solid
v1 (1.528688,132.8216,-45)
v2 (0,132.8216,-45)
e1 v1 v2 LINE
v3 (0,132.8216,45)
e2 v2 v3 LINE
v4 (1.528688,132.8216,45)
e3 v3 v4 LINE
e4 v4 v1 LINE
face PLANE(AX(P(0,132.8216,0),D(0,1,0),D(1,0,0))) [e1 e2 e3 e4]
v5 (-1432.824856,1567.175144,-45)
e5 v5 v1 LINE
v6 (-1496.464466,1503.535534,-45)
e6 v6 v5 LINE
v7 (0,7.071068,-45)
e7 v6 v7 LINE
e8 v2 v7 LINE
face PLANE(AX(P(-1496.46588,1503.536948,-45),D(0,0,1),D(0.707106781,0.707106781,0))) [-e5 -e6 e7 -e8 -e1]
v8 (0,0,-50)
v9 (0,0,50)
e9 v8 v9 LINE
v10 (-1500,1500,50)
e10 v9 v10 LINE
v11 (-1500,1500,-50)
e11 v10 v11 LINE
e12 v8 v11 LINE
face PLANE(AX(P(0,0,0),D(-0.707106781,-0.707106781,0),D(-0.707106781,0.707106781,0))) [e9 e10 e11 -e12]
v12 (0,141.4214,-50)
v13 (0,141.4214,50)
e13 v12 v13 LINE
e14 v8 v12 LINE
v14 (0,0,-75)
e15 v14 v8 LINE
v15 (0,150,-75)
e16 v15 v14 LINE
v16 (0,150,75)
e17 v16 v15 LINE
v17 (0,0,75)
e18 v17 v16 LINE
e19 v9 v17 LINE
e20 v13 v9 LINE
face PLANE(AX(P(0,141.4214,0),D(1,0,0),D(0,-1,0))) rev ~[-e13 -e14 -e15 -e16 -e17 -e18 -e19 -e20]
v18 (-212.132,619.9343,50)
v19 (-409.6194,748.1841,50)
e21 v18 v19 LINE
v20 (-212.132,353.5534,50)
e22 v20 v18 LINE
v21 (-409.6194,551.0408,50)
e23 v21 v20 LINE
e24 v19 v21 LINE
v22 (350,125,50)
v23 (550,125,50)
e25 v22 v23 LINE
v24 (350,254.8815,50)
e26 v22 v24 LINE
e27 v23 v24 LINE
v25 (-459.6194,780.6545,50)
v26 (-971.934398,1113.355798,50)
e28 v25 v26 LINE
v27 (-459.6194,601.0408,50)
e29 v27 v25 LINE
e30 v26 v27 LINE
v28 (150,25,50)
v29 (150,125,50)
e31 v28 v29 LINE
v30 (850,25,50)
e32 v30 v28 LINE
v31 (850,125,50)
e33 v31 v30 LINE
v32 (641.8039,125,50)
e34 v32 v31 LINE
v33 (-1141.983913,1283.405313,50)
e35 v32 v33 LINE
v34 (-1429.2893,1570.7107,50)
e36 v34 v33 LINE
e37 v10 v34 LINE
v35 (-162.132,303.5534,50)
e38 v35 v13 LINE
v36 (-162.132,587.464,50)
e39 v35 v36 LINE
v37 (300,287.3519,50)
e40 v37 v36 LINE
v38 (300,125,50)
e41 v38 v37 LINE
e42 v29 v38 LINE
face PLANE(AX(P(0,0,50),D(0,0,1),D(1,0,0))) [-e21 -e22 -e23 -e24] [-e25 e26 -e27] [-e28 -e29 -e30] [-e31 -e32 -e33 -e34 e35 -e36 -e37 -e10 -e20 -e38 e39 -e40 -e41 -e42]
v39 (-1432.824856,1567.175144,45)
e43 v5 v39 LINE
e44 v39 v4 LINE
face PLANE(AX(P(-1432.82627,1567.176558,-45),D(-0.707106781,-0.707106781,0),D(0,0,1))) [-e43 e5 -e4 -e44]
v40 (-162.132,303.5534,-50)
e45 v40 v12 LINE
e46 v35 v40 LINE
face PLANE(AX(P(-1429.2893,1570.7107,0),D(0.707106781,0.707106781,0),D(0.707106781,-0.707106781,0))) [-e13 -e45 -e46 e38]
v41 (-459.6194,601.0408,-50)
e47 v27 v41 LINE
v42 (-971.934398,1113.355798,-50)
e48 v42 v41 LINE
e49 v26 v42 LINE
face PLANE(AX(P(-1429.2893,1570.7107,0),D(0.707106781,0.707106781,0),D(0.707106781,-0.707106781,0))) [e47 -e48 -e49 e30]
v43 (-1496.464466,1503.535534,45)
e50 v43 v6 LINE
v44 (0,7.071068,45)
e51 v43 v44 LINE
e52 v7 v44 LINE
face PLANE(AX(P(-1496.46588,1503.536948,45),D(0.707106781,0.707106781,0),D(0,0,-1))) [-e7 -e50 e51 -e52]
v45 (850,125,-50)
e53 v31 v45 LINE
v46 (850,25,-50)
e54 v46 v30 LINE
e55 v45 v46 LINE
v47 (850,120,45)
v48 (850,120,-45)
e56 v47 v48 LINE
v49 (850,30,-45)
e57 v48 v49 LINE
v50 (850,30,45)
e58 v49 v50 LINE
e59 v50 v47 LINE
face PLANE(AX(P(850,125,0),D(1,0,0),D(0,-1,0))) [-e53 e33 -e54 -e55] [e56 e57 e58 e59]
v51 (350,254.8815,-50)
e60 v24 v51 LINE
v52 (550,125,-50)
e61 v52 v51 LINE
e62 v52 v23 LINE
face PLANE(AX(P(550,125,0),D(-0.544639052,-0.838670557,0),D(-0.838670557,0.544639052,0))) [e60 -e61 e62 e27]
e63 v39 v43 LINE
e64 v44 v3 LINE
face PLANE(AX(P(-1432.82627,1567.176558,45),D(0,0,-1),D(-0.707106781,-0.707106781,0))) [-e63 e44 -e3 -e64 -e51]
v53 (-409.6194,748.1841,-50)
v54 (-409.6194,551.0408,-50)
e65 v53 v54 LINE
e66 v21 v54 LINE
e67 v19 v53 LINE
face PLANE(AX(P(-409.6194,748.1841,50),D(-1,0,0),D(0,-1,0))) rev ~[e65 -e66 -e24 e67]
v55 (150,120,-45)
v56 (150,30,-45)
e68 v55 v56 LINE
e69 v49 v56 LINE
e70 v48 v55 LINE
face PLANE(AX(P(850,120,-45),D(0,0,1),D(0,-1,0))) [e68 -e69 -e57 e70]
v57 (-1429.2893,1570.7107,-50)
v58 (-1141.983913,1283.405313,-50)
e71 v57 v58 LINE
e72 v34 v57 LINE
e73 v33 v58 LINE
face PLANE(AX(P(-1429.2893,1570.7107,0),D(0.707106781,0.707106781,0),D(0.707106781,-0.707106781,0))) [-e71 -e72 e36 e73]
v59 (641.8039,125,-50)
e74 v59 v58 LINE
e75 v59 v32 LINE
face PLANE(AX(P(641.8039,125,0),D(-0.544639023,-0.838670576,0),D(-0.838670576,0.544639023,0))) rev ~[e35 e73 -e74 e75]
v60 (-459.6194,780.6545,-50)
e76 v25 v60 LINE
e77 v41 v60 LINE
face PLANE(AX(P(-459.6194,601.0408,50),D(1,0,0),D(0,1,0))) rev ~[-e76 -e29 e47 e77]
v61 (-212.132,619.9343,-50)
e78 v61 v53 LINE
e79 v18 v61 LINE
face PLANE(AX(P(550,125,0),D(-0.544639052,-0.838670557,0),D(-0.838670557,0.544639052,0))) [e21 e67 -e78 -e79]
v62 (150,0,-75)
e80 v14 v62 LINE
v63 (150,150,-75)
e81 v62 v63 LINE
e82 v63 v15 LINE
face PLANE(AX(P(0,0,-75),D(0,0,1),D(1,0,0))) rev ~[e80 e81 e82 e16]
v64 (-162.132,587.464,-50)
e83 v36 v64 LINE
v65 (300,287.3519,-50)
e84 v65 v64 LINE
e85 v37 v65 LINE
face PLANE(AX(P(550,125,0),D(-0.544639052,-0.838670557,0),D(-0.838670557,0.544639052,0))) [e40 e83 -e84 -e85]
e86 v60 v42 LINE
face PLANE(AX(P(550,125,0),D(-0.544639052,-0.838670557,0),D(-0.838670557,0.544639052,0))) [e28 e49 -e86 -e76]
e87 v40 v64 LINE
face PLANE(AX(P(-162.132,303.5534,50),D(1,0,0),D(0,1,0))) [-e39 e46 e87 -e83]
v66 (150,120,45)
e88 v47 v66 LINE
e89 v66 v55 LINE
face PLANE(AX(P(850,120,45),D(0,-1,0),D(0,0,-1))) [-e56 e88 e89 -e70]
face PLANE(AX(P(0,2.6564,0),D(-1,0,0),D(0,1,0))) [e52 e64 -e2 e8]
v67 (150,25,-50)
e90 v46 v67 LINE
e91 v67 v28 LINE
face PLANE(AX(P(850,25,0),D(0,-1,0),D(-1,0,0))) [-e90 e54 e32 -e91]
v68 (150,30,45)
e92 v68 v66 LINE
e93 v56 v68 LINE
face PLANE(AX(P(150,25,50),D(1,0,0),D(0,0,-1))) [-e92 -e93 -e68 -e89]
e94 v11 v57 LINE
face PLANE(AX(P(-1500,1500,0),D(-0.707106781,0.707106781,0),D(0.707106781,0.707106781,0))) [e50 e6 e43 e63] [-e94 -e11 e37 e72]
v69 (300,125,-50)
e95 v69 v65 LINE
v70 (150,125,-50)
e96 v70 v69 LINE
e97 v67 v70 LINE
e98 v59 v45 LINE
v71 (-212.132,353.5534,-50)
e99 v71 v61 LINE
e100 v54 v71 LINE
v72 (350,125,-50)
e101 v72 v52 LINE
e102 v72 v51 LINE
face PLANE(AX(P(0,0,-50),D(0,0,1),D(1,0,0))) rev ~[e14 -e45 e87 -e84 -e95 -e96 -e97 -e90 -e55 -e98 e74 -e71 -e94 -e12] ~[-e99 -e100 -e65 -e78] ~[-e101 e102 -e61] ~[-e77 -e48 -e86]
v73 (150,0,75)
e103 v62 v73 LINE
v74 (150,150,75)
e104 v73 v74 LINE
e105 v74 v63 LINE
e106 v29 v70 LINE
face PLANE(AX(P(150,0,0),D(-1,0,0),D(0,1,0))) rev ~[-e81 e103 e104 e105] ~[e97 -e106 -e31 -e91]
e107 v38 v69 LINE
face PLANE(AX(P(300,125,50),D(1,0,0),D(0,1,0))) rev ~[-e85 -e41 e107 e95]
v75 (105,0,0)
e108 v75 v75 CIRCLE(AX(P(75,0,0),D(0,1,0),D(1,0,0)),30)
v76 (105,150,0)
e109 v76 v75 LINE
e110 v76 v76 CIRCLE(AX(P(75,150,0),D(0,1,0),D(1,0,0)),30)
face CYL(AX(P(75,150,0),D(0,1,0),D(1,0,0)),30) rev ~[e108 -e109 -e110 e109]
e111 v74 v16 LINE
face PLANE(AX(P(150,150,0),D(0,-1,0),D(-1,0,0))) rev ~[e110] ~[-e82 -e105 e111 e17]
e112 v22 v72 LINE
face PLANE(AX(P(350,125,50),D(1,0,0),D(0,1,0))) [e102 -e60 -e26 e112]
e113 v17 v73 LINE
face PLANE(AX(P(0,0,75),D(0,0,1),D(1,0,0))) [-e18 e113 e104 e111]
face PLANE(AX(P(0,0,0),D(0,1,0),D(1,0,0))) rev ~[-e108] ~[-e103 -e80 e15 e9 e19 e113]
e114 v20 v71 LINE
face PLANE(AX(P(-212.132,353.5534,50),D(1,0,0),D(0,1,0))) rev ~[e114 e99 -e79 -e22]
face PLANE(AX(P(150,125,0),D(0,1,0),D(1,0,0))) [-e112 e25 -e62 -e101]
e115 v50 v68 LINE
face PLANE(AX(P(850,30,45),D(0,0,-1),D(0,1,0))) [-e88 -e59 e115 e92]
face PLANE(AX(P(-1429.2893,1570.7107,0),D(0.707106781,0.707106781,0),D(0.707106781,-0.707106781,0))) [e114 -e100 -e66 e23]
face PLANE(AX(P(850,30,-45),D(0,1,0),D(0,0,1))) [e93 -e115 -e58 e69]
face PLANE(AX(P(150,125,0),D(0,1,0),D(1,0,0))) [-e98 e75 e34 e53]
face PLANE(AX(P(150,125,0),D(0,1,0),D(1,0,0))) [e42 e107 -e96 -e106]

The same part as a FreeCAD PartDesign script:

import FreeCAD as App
import Part
import Sketcher

V = App.Vector
Q = App.Units.Quantity

doc = App.newDocument("Part")
body = doc.addObject("PartDesign::Body", "Body")

sketch1 = doc.addObject("Sketcher::SketchObject", "Sketch")
body.addObject(sketch1)
sketch1.AttachmentSupport = (doc.XY_Plane, [""])
sketch1.MapMode = "FlatFace"
sketch1.addGeometry([
    Part.LineSegment(V(0, 150, 0), V(0, 0, 0)),
    Part.LineSegment(V(0, 0, 0), V(150, 0, 0)),
    Part.LineSegment(V(150, 0, 0), V(150, 150, 0)),
    Part.LineSegment(V(150, 150, 0), V(0, 150, 0)),
], False)
sketch1.addConstraint([
    Sketcher.Constraint("Coincident", 0, 2, 1, 1),
    Sketcher.Constraint("Coincident", 1, 2, 2, 1),
    Sketcher.Constraint("Coincident", 2, 2, 3, 1),
    Sketcher.Constraint("Coincident", 3, 2, 0, 1),
    Sketcher.Constraint("Vertical", 0),
    Sketcher.Constraint("Horizontal", 1),
    Sketcher.Constraint("Vertical", 2),
    Sketcher.Constraint("Horizontal", 3),
    Sketcher.Constraint("Coincident", 0, 2, -1, 1),
    Sketcher.Constraint("Equal", 3, 0),
    Sketcher.Constraint("DistanceX", 1, 1, 1, 2, 150.0),
])
pad1 = doc.addObject("PartDesign::Pad", "Pad")
body.addObject(pad1)
pad1.Profile = sketch1
pad1.Length = 150
pad1.Midplane = True

sketch2 = doc.addObject("Sketcher::SketchObject", "Sketch001")
body.addObject(sketch2)
sketch2.AttachmentSupport = (doc.XY_Plane, [""])
sketch2.MapMode = "FlatFace"
sketch2.addGeometry([
    Part.LineSegment(V(-1500, 1500, 0), V(0, 0, 0)),
    Part.LineSegment(V(0, 0, 0), V(0, 141, 0)),
    Part.LineSegment(V(0, 141, 0), V(-1429, 1571, 0)),
    Part.LineSegment(V(-1429, 1571, 0), V(-1500, 1500, 0)),
    Part.LineSegment(V(150, 125, 0), V(150, 25, 0)),
    Part.LineSegment(V(150, 25, 0), V(850, 25, 0)),
    Part.LineSegment(V(850, 25, 0), V(850, 125, 0)),
    Part.LineSegment(V(850, 125, 0), V(150, 125, 0)),
], False)
sketch2.addConstraint([
    Sketcher.Constraint("Coincident", 0, 2, 1, 1),
    Sketcher.Constraint("Coincident", 1, 2, 2, 1),
    Sketcher.Constraint("Coincident", 2, 2, 3, 1),
    Sketcher.Constraint("Coincident", 3, 2, 0, 1),
    Sketcher.Constraint("Coincident", 4, 2, 5, 1),
    Sketcher.Constraint("Coincident", 5, 2, 6, 1),
    Sketcher.Constraint("Coincident", 6, 2, 7, 1),
    Sketcher.Constraint("Coincident", 7, 2, 4, 1),
    Sketcher.Constraint("Vertical", 1),
    Sketcher.Constraint("Vertical", 4),
    Sketcher.Constraint("Horizontal", 5),
    Sketcher.Constraint("Vertical", 6),
    Sketcher.Constraint("Horizontal", 7),
    Sketcher.Constraint("Coincident", 0, 2, -1, 1),
    Sketcher.Constraint("Parallel", 0, 2),
    Sketcher.Constraint("Perpendicular", 2, 3),
    Sketcher.Constraint("DistanceX", 5, 1, 5, 2, 700.0),
    Sketcher.Constraint("DistanceY", 4, 2, 4, 1, 100.0),
    Sketcher.Constraint("Angle", 2, Q("135 deg")),
    Sketcher.Constraint("Distance", 3, 100.0),
    Sketcher.Constraint("DistanceX", 3, 2, -1, 1, 1500.0),
    Sketcher.Constraint("DistanceY", -1, 1, 6, 2, 125.0),
    Sketcher.Constraint("DistanceX", -1, 1, 4, 2, 150.0),
])
pad2 = doc.addObject("PartDesign::Pad", "Pad001")
body.addObject(pad2)
pad2.Profile = sketch2
pad2.Length = 100
pad2.Midplane = True

sketch3 = doc.addObject("Sketcher::SketchObject", "Sketch002")
body.addObject(sketch3)
sketch3.Placement = App.Placement(V(-1500, 1500, -50), App.Rotation(V(-0.707106781, -0.707106781, 0), V(0, 0, 0.999999999), V(-0.707106781, 0.707106781, 0), "ZXY"))
sketch3.addGeometry([
    Part.LineSegment(V(-5, 95, 0), V(-95, 95, 0)),
    Part.LineSegment(V(-95, 95, 0), V(-95, 5, 0)),
    Part.LineSegment(V(-95, 5, 0), V(-5, 5, 0)),
    Part.LineSegment(V(-5, 5, 0), V(-5, 95, 0)),
], False)
sketch3.addConstraint([
    Sketcher.Constraint("Coincident", 0, 2, 1, 1),
    Sketcher.Constraint("Coincident", 1, 2, 2, 1),
    Sketcher.Constraint("Coincident", 2, 2, 3, 1),
    Sketcher.Constraint("Coincident", 3, 2, 0, 1),
    Sketcher.Constraint("Horizontal", 0),
    Sketcher.Constraint("Vertical", 1),
    Sketcher.Constraint("Horizontal", 2),
    Sketcher.Constraint("Vertical", 3),
    Sketcher.Constraint("Equal", 2, 1),
    Sketcher.Constraint("DistanceX", 0, 2, 0, 1, 90.0),
    Sketcher.Constraint("DistanceX", 0, 2, -1, 1, 95.0),
    Sketcher.Constraint("DistanceY", -1, 1, 0, 2, 95.0),
])
pocket1 = doc.addObject("PartDesign::Pocket", "Pocket")
body.addObject(pocket1)
pocket1.Profile = sketch3
pocket1.Length = 2122.5

sketch4 = doc.addObject("Sketcher::SketchObject", "Sketch003")
body.addObject(sketch4)
sketch4.AttachmentSupport = (doc.XY_Plane, [""])
sketch4.MapMode = "FlatFace"
sketch4.addGeometry([
    Part.LineSegment(V(69, 133, 0), V(0, 133, 0)),
    Part.LineSegment(V(0, 133, 0), V(0, 3, 0)),
    Part.LineSegment(V(0, 3, 0), V(69, 3, 0)),
    Part.LineSegment(V(69, 3, 0), V(69, 133, 0)),
], False)
sketch4.addConstraint([
    Sketcher.Constraint("Coincident", 0, 2, 1, 1),
    Sketcher.Constraint("Coincident", 1, 2, 2, 1),
    Sketcher.Constraint("Coincident", 2, 2, 3, 1),
    Sketcher.Constraint("Coincident", 3, 2, 0, 1),
    Sketcher.Constraint("Horizontal", 0),
    Sketcher.Constraint("Vertical", 1),
    Sketcher.Constraint("Horizontal", 2),
    Sketcher.Constraint("Vertical", 3),
    Sketcher.Constraint("PointOnObject", 0, 2, -2),
    Sketcher.Constraint("DistanceX", 0, 2, 0, 1, 69.0672),
    Sketcher.Constraint("DistanceY", 1, 2, 1, 1, 130.1652),
    Sketcher.Constraint("DistanceY", -1, 1, 0, 2, 132.8216),
])
pad3 = doc.addObject("PartDesign::Pad", "Pad002")
body.addObject(pad3)
pad3.Profile = sketch4
pad3.Length = 100.5
pad3.Midplane = True

sketch5 = doc.addObject("Sketcher::SketchObject", "Sketch004")
body.addObject(sketch5)
sketch5.AttachmentSupport = (doc.XZ_Plane, [""])
sketch5.MapMode = "FlatFace"
sketch5.AttachmentOffset = App.Placement(V(0, 0, -150), App.Rotation())
sketch5.addGeometry(Part.Circle(V(75, 0, 0), V(0, 0, 1), 30), False)
sketch5.addConstraint([
    Sketcher.Constraint("PointOnObject", 0, 3, -1),
    Sketcher.Constraint("Diameter", 0, 60.0),
    Sketcher.Constraint("DistanceX", -1, 1, 0, 3, 75.0),
])
pocket2 = doc.addObject("PartDesign::Pocket", "Pocket001")
body.addObject(pocket2)
pocket2.Profile = sketch5
pocket2.Length = 340
pocket2.Reversed = True

sketch6 = doc.addObject("Sketcher::SketchObject", "Sketch005")
body.addObject(sketch6)
sketch6.AttachmentSupport = (doc.YZ_Plane, [""])
sketch6.MapMode = "FlatFace"
sketch6.AttachmentOffset = App.Placement(V(0, 0, 850), App.Rotation())
sketch6.addGeometry([
    Part.LineSegment(V(120, -45, 0), V(120, 45, 0)),
    Part.LineSegment(V(120, 45, 0), V(30, 45, 0)),
    Part.LineSegment(V(30, 45, 0), V(30, -45, 0)),
    Part.LineSegment(V(30, -45, 0), V(120, -45, 0)),
], False)
sketch6.addConstraint([
    Sketcher.Constraint("Coincident", 0, 2, 1, 1),
    Sketcher.Constraint("Coincident", 1, 2, 2, 1),
    Sketcher.Constraint("Coincident", 2, 2, 3, 1),
    Sketcher.Constraint("Coincident", 3, 2, 0, 1),
    Sketcher.Constraint("Vertical", 0),
    Sketcher.Constraint("Horizontal", 1),
    Sketcher.Constraint("Vertical", 2),
    Sketcher.Constraint("Horizontal", 3),
    Sketcher.Constraint("Equal", 3, 0),
    Sketcher.Constraint("DistanceX", 1, 2, 1, 1, 90.0),
    Sketcher.Constraint("DistanceX", -1, 1, 0, 2, 120.0),
    Sketcher.Constraint("DistanceY", -1, 1, 0, 2, 45.0),
])
pocket3 = doc.addObject("PartDesign::Pocket", "Pocket002")
body.addObject(pocket3)
pocket3.Profile = sketch6
pocket3.Length = 700

sketch7 = doc.addObject("Sketcher::SketchObject", "Sketch006")
body.addObject(sketch7)
sketch7.AttachmentSupport = (doc.XY_Plane, [""])
sketch7.MapMode = "FlatFace"
sketch7.addGeometry([
    Part.LineSegment(V(-972, 1113, 0), V(550, 125, 0)),
    Part.LineSegment(V(550, 125, 0), V(642, 125, 0)),
    Part.LineSegment(V(642, 125, 0), V(-1142, 1283, 0)),
    Part.LineSegment(V(-1142, 1283, 0), V(-972, 1113, 0)),
], False)
sketch7.addConstraint([
    Sketcher.Constraint("Coincident", 0, 2, 1, 1),
    Sketcher.Constraint("Coincident", 1, 2, 2, 1),
    Sketcher.Constraint("Coincident", 2, 2, 3, 1),
    Sketcher.Constraint("Coincident", 3, 2, 0, 1),
    Sketcher.Constraint("Horizontal", 1),
    Sketcher.Constraint("Parallel", 0, 2),
    Sketcher.Constraint("Angle", 2, Q("147 deg")),
    Sketcher.Constraint("Angle", 3, Q("-45 deg")),
    Sketcher.Constraint("DistanceX", -1, 1, 0, 2, 550.0),
    Sketcher.Constraint("DistanceY", -1, 1, 0, 2, 125.0),
    Sketcher.Constraint("DistanceX", 1, 1, 1, 2, 91.804),
    Sketcher.Constraint("DistanceX", 2, 2, -1, 1, 1142.042),
])
pad4 = doc.addObject("PartDesign::Pad", "Pad003")
body.addObject(pad4)
pad4.Profile = sketch7
pad4.Length = 100
pad4.Midplane = True

sketch8 = doc.addObject("Sketcher::SketchObject", "Sketch007")
body.addObject(sketch8)
sketch8.AttachmentSupport = (doc.XY_Plane, [""])
sketch8.MapMode = "FlatFace"
sketch8.AttachmentOffset = App.Placement(V(0, 0, 50), App.Rotation())
sketch8.addGeometry([
    Part.LineSegment(V(-357, 774, 0), V(-315, 746, 0)),
    Part.LineSegment(V(-315, 746, 0), V(-298, 763, 0)),
    Part.LineSegment(V(-298, 763, 0), V(-333, 798, 0)),
    Part.LineSegment(V(-333, 798, 0), V(-357, 774, 0)),
], False)
sketch8.addConstraint([
    Sketcher.Constraint("Coincident", 0, 2, 1, 1),
    Sketcher.Constraint("Coincident", 1, 2, 2, 1),
    Sketcher.Constraint("Coincident", 2, 2, 3, 1),
    Sketcher.Constraint("Coincident", 3, 2, 0, 1),
    Sketcher.Constraint("Perpendicular", 1, 2),
    Sketcher.Constraint("Perpendicular", 2, 3),
    Sketcher.Constraint("Angle", 0, Q("-33 deg")),
    Sketcher.Constraint("Angle", 1, Q("45 deg")),
    Sketcher.Constraint("Distance", 2, 50.0),
    Sketcher.Constraint("DistanceY", -1, 1, 2, 2, 797.97),
    Sketcher.Constraint("Distance", 1, 23.381),
    Sketcher.Constraint("DistanceX", 0, 2, -1, 1, 314.5783),
])
pocket4 = doc.addObject("PartDesign::Pocket", "Pocket003")
body.addObject(pocket4)
pocket4.Profile = sketch8
pocket4.Length = 228.5

sketch9 = doc.addObject("Sketcher::SketchObject", "Sketch008")
body.addObject(sketch9)
sketch9.AttachmentSupport = (doc.XY_Plane, [""])
sketch9.MapMode = "FlatFace"
sketch9.AttachmentOffset = App.Placement(V(0, 0, 50), App.Rotation())
sketch9.addGeometry([
    Part.LineSegment(V(350, 255, 0), V(300, 287, 0)),
    Part.LineSegment(V(300, 287, 0), V(300, 125, 0)),
    Part.LineSegment(V(300, 125, 0), V(350, 125, 0)),
    Part.LineSegment(V(350, 125, 0), V(350, 255, 0)),
    Part.LineSegment(V(-212, 354, 0), V(-162, 304, 0)),
    Part.LineSegment(V(-162, 304, 0), V(-162, 587, 0)),
    Part.LineSegment(V(-162, 587, 0), V(-212, 620, 0)),
    Part.LineSegment(V(-212, 620, 0), V(-212, 354, 0)),
    Part.LineSegment(V(-410, 551, 0), V(-410, 748, 0)),
    Part.LineSegment(V(-410, 748, 0), V(-460, 781, 0)),
    Part.LineSegment(V(-460, 781, 0), V(-460, 601, 0)),
    Part.LineSegment(V(-460, 601, 0), V(-410, 551, 0)),
], False)
sketch9.addConstraint([
    Sketcher.Constraint("Coincident", 0, 2, 1, 1),
    Sketcher.Constraint("Coincident", 1, 2, 2, 1),
    Sketcher.Constraint("Coincident", 2, 2, 3, 1),
    Sketcher.Constraint("Coincident", 3, 2, 0, 1),
    Sketcher.Constraint("Coincident", 4, 2, 5, 1),
    Sketcher.Constraint("Coincident", 5, 2, 6, 1),
    Sketcher.Constraint("Coincident", 6, 2, 7, 1),
    Sketcher.Constraint("Coincident", 7, 2, 4, 1),
    Sketcher.Constraint("Coincident", 8, 2, 9, 1),
    Sketcher.Constraint("Coincident", 9, 2, 10, 1),
    Sketcher.Constraint("Coincident", 10, 2, 11, 1),
    Sketcher.Constraint("Coincident", 11, 2, 8, 1),
    Sketcher.Constraint("Vertical", 1),
    Sketcher.Constraint("Horizontal", 2),
    Sketcher.Constraint("Vertical", 3),
    Sketcher.Constraint("Vertical", 5),
    Sketcher.Constraint("Vertical", 7),
    Sketcher.Constraint("Vertical", 8),
    Sketcher.Constraint("Vertical", 10),
    Sketcher.Constraint("Parallel", 0, 6),
    Sketcher.Constraint("Parallel", 6, 9),
    Sketcher.Constraint("Parallel", 4, 11),
    Sketcher.Constraint("Equal", 0, 6),
    Sketcher.Constraint("Equal", 6, 9),
    Sketcher.Constraint("DistanceX", 2, 1, 2, 2, 50.0),
    Sketcher.Constraint("DistanceX", -1, 1, 0, 2, 300.0),
    Sketcher.Constraint("DistanceY", 4, 2, 7, 2, 50.0),
    Sketcher.Constraint("Angle", 0, Q("147 deg")),
    Sketcher.Constraint("DistanceY", -1, 1, 1, 2, 125.0),
    Sketcher.Constraint("DistanceY", 1, 2, 1, 1, 162.352),
    Sketcher.Constraint("DistanceY", 7, 2, 7, 1, 266.381),
    Sketcher.Constraint("DistanceY", 5, 2, 8, 2, 160.72),
    Sketcher.Constraint("DistanceY", 8, 1, 8, 2, 197.1433),
    Sketcher.Constraint("DistanceX", 4, 2, -1, 1, 162.132),
    Sketcher.Constraint("DistanceY", -1, 1, 5, 2, 587.464),
    Sketcher.Constraint("DistanceX", 8, 2, -1, 1, 409.6194),
])
pad5 = doc.addObject("PartDesign::Pad", "Pad004")
body.addObject(pad5)
pad5.Profile = sketch9
pad5.Length = 100
pad5.Reversed = True

doc.recompute()
